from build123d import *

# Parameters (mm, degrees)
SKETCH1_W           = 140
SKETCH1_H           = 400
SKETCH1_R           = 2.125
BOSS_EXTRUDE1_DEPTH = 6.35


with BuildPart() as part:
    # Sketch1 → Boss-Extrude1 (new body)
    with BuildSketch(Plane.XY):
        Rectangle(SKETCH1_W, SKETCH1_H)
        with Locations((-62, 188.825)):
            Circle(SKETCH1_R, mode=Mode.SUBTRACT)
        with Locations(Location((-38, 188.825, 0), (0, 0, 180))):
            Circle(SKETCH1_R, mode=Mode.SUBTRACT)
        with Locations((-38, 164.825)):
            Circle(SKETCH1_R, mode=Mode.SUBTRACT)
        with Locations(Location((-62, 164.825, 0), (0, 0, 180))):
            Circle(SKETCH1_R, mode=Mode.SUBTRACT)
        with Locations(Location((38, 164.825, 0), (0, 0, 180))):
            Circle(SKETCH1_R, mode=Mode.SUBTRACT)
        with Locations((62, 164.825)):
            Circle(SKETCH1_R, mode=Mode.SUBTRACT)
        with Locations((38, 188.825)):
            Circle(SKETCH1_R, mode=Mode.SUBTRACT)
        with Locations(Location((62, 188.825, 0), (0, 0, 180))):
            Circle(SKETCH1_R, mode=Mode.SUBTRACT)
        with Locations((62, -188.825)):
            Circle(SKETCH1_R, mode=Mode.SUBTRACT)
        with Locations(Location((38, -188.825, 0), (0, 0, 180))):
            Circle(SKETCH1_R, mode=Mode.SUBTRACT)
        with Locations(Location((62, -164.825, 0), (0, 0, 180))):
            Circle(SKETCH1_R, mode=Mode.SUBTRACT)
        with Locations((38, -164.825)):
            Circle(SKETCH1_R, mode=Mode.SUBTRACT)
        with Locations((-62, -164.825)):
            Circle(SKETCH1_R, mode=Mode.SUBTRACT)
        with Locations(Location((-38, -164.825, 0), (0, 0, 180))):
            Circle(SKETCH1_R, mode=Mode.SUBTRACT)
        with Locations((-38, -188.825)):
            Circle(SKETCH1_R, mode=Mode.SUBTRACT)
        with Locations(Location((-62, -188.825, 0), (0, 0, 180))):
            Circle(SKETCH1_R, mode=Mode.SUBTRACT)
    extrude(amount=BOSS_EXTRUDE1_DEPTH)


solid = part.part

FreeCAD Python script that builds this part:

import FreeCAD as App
import Part
import Sketcher

V = App.Vector


def add_polygon(sketch, points):
    """Adds a closed chain of lines whose ends are joined by coincident constraints."""
    first, n = sketch.GeometryCount, len(points)
    for a, b in zip(points, points[1:] + points[:1]):
        sketch.addGeometry(Part.LineSegment(App.Vector(*a, 0), App.Vector(*b, 0)), False)
    for i in range(n):
        sketch.addConstraint(Sketcher.Constraint("Coincident", first + i, 2, first + (i + 1) % n, 1))

doc = App.newDocument("Part")
body = doc.addObject("PartDesign::Body", "Body")

# Sketch on XY plane
sketch1 = body.newObject("Sketcher::SketchObject", "Sketch")
sketch1.AttachmentSupport = (doc.getObject("XY_Plane"), [""])
sketch1.MapMode = "FlatFace"
add_polygon(sketch1, [(-70, 200), (-70, -200), (70, -200), (70, 200)])  # lines 0-3
sketch1.addGeometry(Part.Circle(V(-62, -188.8, 0), V(0, 0, 1), 2.1), False)  # 4
sketch1.addGeometry(Part.Circle(V(-62, -164.8, 0), V(0, 0, 1), 2.1), False)  # 5
sketch1.addGeometry(Part.Circle(V(-38, -188.8, 0), V(0, 0, 1), 2.1), False)  # 6
sketch1.addGeometry(Part.Circle(V(-38, -164.8, 0), V(0, 0, 1), 2.1), False)  # 7
sketch1.addGeometry(Part.Circle(V(38, -188.8, 0), V(0, 0, 1), 2.1), False)  # 8
sketch1.addGeometry(Part.Circle(V(38, -164.8, 0), V(0, 0, 1), 2.1), False)  # 9
sketch1.addGeometry(Part.Circle(V(62, -188.8, 0), V(0, 0, 1), 2.1), False)  # 10
sketch1.addGeometry(Part.Circle(V(62, -164.8, 0), V(0, 0, 1), 2.1), False)  # 11
sketch1.addGeometry(Part.Circle(V(-62, 164.8, 0), V(0, 0, 1), 2.1), False)  # 12
sketch1.addGeometry(Part.Circle(V(-62, 188.8, 0), V(0, 0, 1), 2.1), False)  # 13
sketch1.addGeometry(Part.Circle(V(-38, 164.8, 0), V(0, 0, 1), 2.1), False)  # 14
sketch1.addGeometry(Part.Circle(V(-38, 188.8, 0), V(0, 0, 1), 2.1), False)  # 15
sketch1.addGeometry(Part.Circle(V(38, 164.8, 0), V(0, 0, 1), 2.1), False)  # 16
sketch1.addGeometry(Part.Circle(V(38, 188.8, 0), V(0, 0, 1), 2.1), False)  # 17
sketch1.addGeometry(Part.Circle(V(62, 164.8, 0), V(0, 0, 1), 2.1), False)  # 18
sketch1.addGeometry(Part.Circle(V(62, 188.8, 0), V(0, 0, 1), 2.1), False)  # 19
sketch1.addConstraint(Sketcher.Constraint("Vertical", 0))
sketch1.addConstraint(Sketcher.Constraint("Horizontal", 1))
sketch1.addConstraint(Sketcher.Constraint("Vertical", 2))
sketch1.addConstraint(Sketcher.Constraint("Horizontal", 3))
sketch1.addConstraint(Sketcher.Constraint("Equal", 4, 5))
sketch1.addConstraint(Sketcher.Constraint("Equal", 5, 6))
sketch1.addConstraint(Sketcher.Constraint("Equal", 6, 7))
sketch1.addConstraint(Sketcher.Constraint("Equal", 7, 8))
sketch1.addConstraint(Sketcher.Constraint("Equal", 8, 9))
sketch1.addConstraint(Sketcher.Constraint("Equal", 9, 10))
sketch1.addConstraint(Sketcher.Constraint("Equal", 10, 11))
sketch1.addConstraint(Sketcher.Constraint("Equal", 11, 12))
sketch1.addConstraint(Sketcher.Constraint("Equal", 12, 13))
sketch1.addConstraint(Sketcher.Constraint("Equal", 13, 14))
sketch1.addConstraint(Sketcher.Constraint("Equal", 14, 15))
sketch1.addConstraint(Sketcher.Constraint("Equal", 15, 16))
sketch1.addConstraint(Sketcher.Constraint("Equal", 16, 17))
sketch1.addConstraint(Sketcher.Constraint("Equal", 17, 18))
sketch1.addConstraint(Sketcher.Constraint("Equal", 18, 19))
sketch1.addConstraint(Sketcher.Constraint("Symmetric", 11, 3, 12, 3, -1, 1))
sketch1.addConstraint(Sketcher.Constraint("Symmetric", 10, 3, 13, 3, -1, 1))
sketch1.addConstraint(Sketcher.Constraint("Symmetric", 9, 3, 14, 3, -1, 1))
sketch1.addConstraint(Sketcher.Constraint("Symmetric", 8, 3, 15, 3, -1, 1))
sketch1.addConstraint(Sketcher.Constraint("Symmetric", 7, 3, 16, 3, -1, 1))
sketch1.addConstraint(Sketcher.Constraint("Symmetric", 6, 3, 17, 3, -1, 1))
sketch1.addConstraint(Sketcher.Constraint("Symmetric", 5, 3, 18, 3, -1, 1))
sketch1.addConstraint(Sketcher.Constraint("Symmetric", 4, 3, 19, 3, -1, 1))
sketch1.addConstraint(Sketcher.Constraint("Symmetric", 0, 2, 2, 2, -1, 1))
sketch1.addConstraint(Sketcher.Constraint("Symmetric", 6, 3, 8, 3, -2))
sketch1.addConstraint(Sketcher.Constraint("Symmetric", 7, 3, 9, 3, -2))
sketch1.addConstraint(Sketcher.Constraint("Symmetric", 4, 3, 10, 3, -2))
sketch1.addConstraint(Sketcher.Constraint("Symmetric", 5, 3, 11, 3, -2))
sketch1.addConstraint(Sketcher.Constraint("Horizontal", 4, 3, 6, 3))
sketch1.addConstraint(Sketcher.Constraint("Horizontal", 5, 3, 7, 3))
sketch1.addConstraint(Sketcher.Constraint("Vertical", 4, 3, 5, 3))
sketch1.addConstraint(Sketcher.Constraint("Vertical", 6, 3, 7, 3))
sketch1.addConstraint(Sketcher.Constraint("Diameter", 4, 4.25))
sketch1.addConstraint(Sketcher.Constraint("DistanceX", 1, 1, 1, 2, 140.0))
sketch1.addConstraint(Sketcher.Constraint("DistanceY", 0, 2, 0, 1, 400.0))
sketch1.addConstraint(Sketcher.Constraint("DistanceX", 4, 3, -1, 1, 62.0))
sketch1.addConstraint(Sketcher.Constraint("DistanceX", 6, 3, -1, 1, 38.0))
sketch1.addConstraint(Sketcher.Constraint("DistanceY", 4, 3, 5, 3, 24.0))
sketch1.addConstraint(Sketcher.Constraint("DistanceY", 5, 3, 12, 3, 329.65))
pad1 = body.newObject("PartDesign::Pad", "Pad")
pad1.Profile = sketch1
pad1.Length = 6.35

doc.recompute()
